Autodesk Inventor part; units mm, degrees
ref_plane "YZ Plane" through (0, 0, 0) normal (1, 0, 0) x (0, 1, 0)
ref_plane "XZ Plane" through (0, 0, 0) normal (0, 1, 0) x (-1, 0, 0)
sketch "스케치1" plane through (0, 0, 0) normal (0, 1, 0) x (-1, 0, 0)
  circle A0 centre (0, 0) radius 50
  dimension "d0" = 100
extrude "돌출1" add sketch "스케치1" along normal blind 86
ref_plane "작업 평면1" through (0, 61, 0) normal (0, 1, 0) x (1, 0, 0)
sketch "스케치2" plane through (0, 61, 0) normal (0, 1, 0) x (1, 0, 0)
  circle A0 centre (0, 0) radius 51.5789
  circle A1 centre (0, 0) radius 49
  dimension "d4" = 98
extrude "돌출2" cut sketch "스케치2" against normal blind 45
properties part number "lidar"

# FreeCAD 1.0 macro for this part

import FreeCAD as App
import Part
import Sketcher

doc = App.newDocument("Part")
body = doc.addObject("PartDesign::Body", "Body")

# Sketch on XZ plane
sketch1 = body.newObject("Sketcher::SketchObject", "Sketch")
sketch1.AttachmentSupport = (doc.getObject("XZ_Plane"), [""])
sketch1.MapMode = "FlatFace"
sketch1.addGeometry(Part.Circle(App.Vector(0, 0, 0), App.Vector(0, 0, 1), 50), False)
sketch1.addConstraint([
    Sketcher.Constraint("Coincident", 0, 3, -1, 1),
    Sketcher.Constraint("Diameter", 0, 100.0),
])
pad1 = body.newObject("PartDesign::Pad", "Pad")
pad1.Profile = sketch1
pad1.Length = 86
pad1.Reversed = True

# Sketch on XZ plane
sketch2 = body.newObject("Sketcher::SketchObject", "Sketch001")
sketch2.AttachmentSupport = (doc.getObject("XZ_Plane"), [""])
sketch2.MapMode = "FlatFace"
sketch2.AttachmentOffset = App.Placement(App.Vector(0, 0, -61), App.Rotation())
sketch2.addGeometry([
    Part.Circle(App.Vector(0, 0, 0), App.Vector(0, 0, 1), 51.5789),
    Part.Circle(App.Vector(0, 0, 0), App.Vector(0, 0, 1), 49),
], False)
sketch2.addConstraint([
    Sketcher.Constraint("Coincident", 0, 3, -1, 1),
    Sketcher.Constraint("Coincident", 1, 3, -1, 1),
    Sketcher.Constraint("Diameter", 1, 98.0),
    Sketcher.Constraint("Diameter", 0, 103.1578),
])
pocket1 = body.newObject("PartDesign::Pocket", "Pocket")
pocket1.Profile = sketch2
pocket1.Length = 45
pocket1.Reversed = True

doc.recompute()
